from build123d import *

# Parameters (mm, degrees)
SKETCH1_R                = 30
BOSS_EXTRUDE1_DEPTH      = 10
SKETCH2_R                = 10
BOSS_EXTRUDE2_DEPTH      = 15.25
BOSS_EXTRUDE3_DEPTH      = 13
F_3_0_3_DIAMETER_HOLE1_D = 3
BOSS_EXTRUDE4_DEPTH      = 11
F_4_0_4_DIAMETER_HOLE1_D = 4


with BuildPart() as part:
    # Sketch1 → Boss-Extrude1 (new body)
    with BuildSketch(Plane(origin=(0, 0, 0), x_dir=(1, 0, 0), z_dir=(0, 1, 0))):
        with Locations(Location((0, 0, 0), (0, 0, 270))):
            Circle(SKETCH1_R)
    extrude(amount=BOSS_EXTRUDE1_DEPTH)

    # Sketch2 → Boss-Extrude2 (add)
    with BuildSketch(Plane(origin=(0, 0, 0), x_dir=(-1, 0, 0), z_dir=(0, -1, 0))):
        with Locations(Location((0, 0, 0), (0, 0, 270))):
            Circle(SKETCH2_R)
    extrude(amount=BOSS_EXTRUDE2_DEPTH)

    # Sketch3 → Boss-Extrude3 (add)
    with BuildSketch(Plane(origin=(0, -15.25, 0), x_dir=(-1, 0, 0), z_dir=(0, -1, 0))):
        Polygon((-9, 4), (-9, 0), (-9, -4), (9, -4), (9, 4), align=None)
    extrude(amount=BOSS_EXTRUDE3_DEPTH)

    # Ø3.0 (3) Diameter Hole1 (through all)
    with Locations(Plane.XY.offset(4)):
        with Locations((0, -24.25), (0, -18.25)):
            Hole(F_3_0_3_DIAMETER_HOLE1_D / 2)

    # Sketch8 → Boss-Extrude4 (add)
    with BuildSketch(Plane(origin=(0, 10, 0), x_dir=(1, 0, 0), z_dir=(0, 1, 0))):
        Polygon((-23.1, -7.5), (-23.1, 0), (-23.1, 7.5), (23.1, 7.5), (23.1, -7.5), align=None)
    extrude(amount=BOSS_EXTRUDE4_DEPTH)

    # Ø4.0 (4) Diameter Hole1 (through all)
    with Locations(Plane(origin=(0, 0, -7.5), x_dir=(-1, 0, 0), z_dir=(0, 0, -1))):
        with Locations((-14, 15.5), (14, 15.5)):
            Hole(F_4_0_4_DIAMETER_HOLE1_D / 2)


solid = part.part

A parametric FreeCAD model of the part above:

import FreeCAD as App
import Part
import Sketcher
Q = App.Units.Quantity

doc = App.newDocument("Part")
body = doc.addObject("PartDesign::Body", "Body")

sketch1 = body.newObject("Sketcher::SketchObject", "Sketch")
sketch1.AttachmentSupport = (doc.getObject("XZ_Plane"), [""])
sketch1.MapMode = "FlatFace"
sketch1.addGeometry(Part.Circle(App.Vector(0, 0, 0), App.Vector(0, 0, 1), 30), False)
sketch1.addConstraint(Sketcher.Constraint("Coincident", 0, 3, -1, 1))
sketch1.addConstraint(Sketcher.Constraint("Diameter", 0, Q("60 mm")))
pad1 = body.newObject("PartDesign::Pad", "Pad")
pad1.Profile = sketch1
pad1.Length = 10
pad1.Reversed = True

sketch2 = body.newObject("Sketcher::SketchObject", "Sketch001")
sketch2.AttachmentSupport = (doc.getObject("XZ_Plane"), [""])
sketch2.MapMode = "FlatFace"
sketch2.addGeometry(Part.Circle(App.Vector(0, 0, 0), App.Vector(0, 0, 1), 10), False)
sketch2.addConstraint(Sketcher.Constraint("Coincident", 0, 3, -1, 1))
sketch2.addConstraint(Sketcher.Constraint("Diameter", 0, Q("20 mm")))
pad2 = body.newObject("PartDesign::Pad", "Pad001")
pad2.Profile = sketch2
pad2.Length = 15.25

sketch3 = body.newObject("Sketcher::SketchObject", "Sketch002")
sketch3.AttachmentSupport = (doc.getObject("XZ_Plane"), [""])
sketch3.MapMode = "FlatFace"
sketch3.AttachmentOffset = App.Placement(App.Vector(0, 0, 15.25), App.Rotation())
sketch3.addGeometry(Part.LineSegment(App.Vector(9, -4, 0), App.Vector(9, 4, 0)), False)
sketch3.addGeometry(Part.LineSegment(App.Vector(9, 4, 0), App.Vector(-9, 4, 0)), False)
sketch3.addGeometry(Part.LineSegment(App.Vector(-9, 4, 0), App.Vector(-9, -4, 0)), False)
sketch3.addGeometry(Part.LineSegment(App.Vector(-9, -4, 0), App.Vector(9, -4, 0)), False)
sketch3.addConstraint(Sketcher.Constraint("Coincident", 0, 2, 1, 1))
sketch3.addConstraint(Sketcher.Constraint("Coincident", 1, 2, 2, 1))
sketch3.addConstraint(Sketcher.Constraint("Coincident", 2, 2, 3, 1))
sketch3.addConstraint(Sketcher.Constraint("Coincident", 3, 2, 0, 1))
sketch3.addConstraint(Sketcher.Constraint("Vertical", 0))
sketch3.addConstraint(Sketcher.Constraint("Horizontal", 1))
sketch3.addConstraint(Sketcher.Constraint("Vertical", 2))
sketch3.addConstraint(Sketcher.Constraint("Horizontal", 3))
sketch3.addConstraint(Sketcher.Constraint("Symmetric", 0, 2, 2, 2, -1, 1))
sketch3.addConstraint(Sketcher.Constraint("DistanceX", 1, 2, 1, 1, Q("18 mm")))
sketch3.addConstraint(Sketcher.Constraint("DistanceY", 0, 1, 0, 2, Q("8 mm")))
pad3 = body.newObject("PartDesign::Pad", "Pad002")
pad3.Profile = sketch3
pad3.Length = 13

sketch4 = body.newObject("Sketcher::SketchObject", "Sketch003")
sketch4.AttachmentSupport = (doc.getObject("XY_Plane"), [""])
sketch4.MapMode = "FlatFace"
sketch4.AttachmentOffset = App.Placement(App.Vector(0, 0, 4), App.Rotation())
sketch4.addGeometry(Part.Circle(App.Vector(0, -24.2, 0), App.Vector(0, 0, 1), 1.5), False)
sketch4.addGeometry(Part.Circle(App.Vector(0, -18.2, 0), App.Vector(0, 0, 1), 1.5), False)
sketch4.addConstraint(Sketcher.Constraint("Equal", 0, 1))
sketch4.addConstraint(Sketcher.Constraint("PointOnObject", 0, 3, -2))
sketch4.addConstraint(Sketcher.Constraint("PointOnObject", 1, 3, -2))
sketch4.addConstraint(Sketcher.Constraint("Diameter", 0, Q("3 mm")))
sketch4.addConstraint(Sketcher.Constraint("DistanceY", 0, 3, 1, 3, Q("6 mm")))
sketch4.addConstraint(Sketcher.Constraint("DistanceY", 0, 3, -1, 1, Q("24.25 mm")))
doc.recompute()
hole = body.newObject("PartDesign::Hole", "Hole")
hole.Profile = sketch4
hole.ThreadType = "None"
hole.Diameter = 3
hole.DepthType = "ThroughAll"

sketch5 = body.newObject("Sketcher::SketchObject", "Sketch004")
sketch5.AttachmentSupport = (doc.getObject("XZ_Plane"), [""])
sketch5.MapMode = "FlatFace"
sketch5.AttachmentOffset = App.Placement(App.Vector(0, 0, -10), App.Rotation())
sketch5.addGeometry(Part.LineSegment(App.Vector(-23, -8, 0), App.Vector(-23, 8, 0)), False)
sketch5.addGeometry(Part.LineSegment(App.Vector(-23, 8, 0), App.Vector(23, 8, 0)), False)
sketch5.addGeometry(Part.LineSegment(App.Vector(23, 8, 0), App.Vector(23, -8, 0)), False)
sketch5.addGeometry(Part.LineSegment(App.Vector(23, -8, 0), App.Vector(-23, -8, 0)), False)
sketch5.addConstraint(Sketcher.Constraint("Coincident", 0, 2, 1, 1))
sketch5.addConstraint(Sketcher.Constraint("Coincident", 1, 2, 2, 1))
sketch5.addConstraint(Sketcher.Constraint("Coincident", 2, 2, 3, 1))
sketch5.addConstraint(Sketcher.Constraint("Coincident", 3, 2, 0, 1))
sketch5.addConstraint(Sketcher.Constraint("Vertical", 0))
sketch5.addConstraint(Sketcher.Constraint("Horizontal", 1))
sketch5.addConstraint(Sketcher.Constraint("Vertical", 2))
sketch5.addConstraint(Sketcher.Constraint("Horizontal", 3))
sketch5.addConstraint(Sketcher.Constraint("Symmetric", 0, 2, 2, 2, -1, 1))
sketch5.addConstraint(Sketcher.Constraint("DistanceY", 0, 1, 0, 2, Q("15 mm")))
sketch5.addConstraint(Sketcher.Constraint("DistanceX", 1, 1, 1, 2, Q("46.2 mm")))
pad4 = body.newObject("PartDesign::Pad", "Pad003")
pad4.Profile = sketch5
pad4.Length = 11
pad4.Reversed = True

sketch6 = body.newObject("Sketcher::SketchObject", "Sketch005")
sketch6.AttachmentSupport = (doc.getObject("XY_Plane"), [""])
sketch6.MapMode = "FlatFace"
sketch6.AttachmentOffset = App.Placement(App.Vector(0, 0, -7.5), App.Rotation())
sketch6.addGeometry(Part.Circle(App.Vector(14, 15.5, 0), App.Vector(0, 0, 1), 2), False)
sketch6.addGeometry(Part.Circle(App.Vector(-14, 15.5, 0), App.Vector(0, 0, 1), 2), False)
sketch6.addConstraint(Sketcher.Constraint("Equal", 0, 1))
sketch6.addConstraint(Sketcher.Constraint("Symmetric", 0, 3, 1, 3, -2))
sketch6.addConstraint(Sketcher.Constraint("Diameter", 0, Q("4 mm")))
sketch6.addConstraint(Sketcher.Constraint("DistanceX", -1, 1, 0, 3, Q("14 mm")))
sketch6.addConstraint(Sketcher.Constraint("DistanceY", -1, 1, 0, 3, Q("15.5 mm")))
doc.recompute()
hole2 = body.newObject("PartDesign::Hole", "Hole001")
hole2.Profile = sketch6
hole2.ThreadType = "None"
hole2.Diameter = 4
hole2.DepthType = "ThroughAll"
hole2.Reversed = True

doc.recompute()
